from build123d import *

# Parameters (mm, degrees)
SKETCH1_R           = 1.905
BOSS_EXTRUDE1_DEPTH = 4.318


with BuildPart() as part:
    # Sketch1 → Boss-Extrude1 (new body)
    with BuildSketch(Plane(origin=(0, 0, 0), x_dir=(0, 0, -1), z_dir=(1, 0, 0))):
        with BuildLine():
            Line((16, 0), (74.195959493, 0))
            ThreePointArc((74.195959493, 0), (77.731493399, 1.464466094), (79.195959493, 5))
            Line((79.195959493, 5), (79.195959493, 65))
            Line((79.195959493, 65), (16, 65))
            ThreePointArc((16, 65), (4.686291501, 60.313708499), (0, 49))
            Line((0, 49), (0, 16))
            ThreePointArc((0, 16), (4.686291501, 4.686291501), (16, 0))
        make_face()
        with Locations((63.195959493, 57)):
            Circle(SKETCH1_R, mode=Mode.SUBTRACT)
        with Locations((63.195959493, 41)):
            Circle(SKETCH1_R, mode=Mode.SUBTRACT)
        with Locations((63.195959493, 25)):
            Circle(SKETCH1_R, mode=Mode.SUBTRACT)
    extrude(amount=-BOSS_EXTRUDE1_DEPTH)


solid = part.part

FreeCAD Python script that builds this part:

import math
import FreeCAD as App
import Part
import Sketcher
from FreeCAD import Vector

doc = App.newDocument("Part")
params = doc.addObject("Spreadsheet::Sheet", "Params")
for row, (alias, value) in enumerate([
    ("sketch1_radius", "5 mm"),
    ("sketch1_radius2", "16 mm"),
    ("sketch1_diameter", "3.81 mm"),
    ("sketch1_width", "60 mm"),
    ("pad1_length", "4.318 mm"),
], start=1):
    params.set(f"A{row}", alias)
    params.set(f"B{row}", "=" + value)
    params.setAlias(f"B{row}", alias)

body = doc.addObject("PartDesign::Body", "Body")

sketch1 = doc.addObject("Sketcher::SketchObject", "Sketch")
body.addObject(sketch1)
sketch1.AttachmentSupport = (doc.YZ_Plane, [""])
sketch1.MapMode = "FlatFace"
sketch1.addGeometry([
    Part.LineSegment(Vector(0, -16, 0), Vector(0, -74.2, 0)),
    Part.ArcOfCircle(Part.Circle(Vector(5, -74.2, 0), Vector(0, 0, 1), 5), math.radians(180), math.radians(270)),
    Part.LineSegment(Vector(5, -79.2, 0), Vector(65, -79.2, 0)),
    Part.LineSegment(Vector(65, -79.2, 0), Vector(65, -16, 0)),
    Part.ArcOfCircle(Part.Circle(Vector(49, -16, 0), Vector(0, 0, 1), 16), math.radians(0), math.radians(90)),
    Part.LineSegment(Vector(49, 0, 0), Vector(16, 0, 0)),
    Part.ArcOfCircle(Part.Circle(Vector(16, -16, 0), Vector(0, 0, 1), 16), math.radians(90), math.radians(180)),
    Part.Circle(Vector(25, -63.2, 0), Vector(0, 0, 1), 1.9),
    Part.Circle(Vector(41, -63.2, 0), Vector(0, 0, 1), 1.9),
    Part.Circle(Vector(57, -63.2, 0), Vector(0, 0, 1), 1.9),
], False)
sketch1.addConstraint([
    Sketcher.Constraint("Tangent", 0, 2, 1, 1),
    Sketcher.Constraint("Tangent", 1, 2, 2, 1),
    Sketcher.Constraint("Coincident", 2, 2, 3, 1),
    Sketcher.Constraint("Tangent", 3, 2, 4, 1),
    Sketcher.Constraint("Tangent", 4, 2, 5, 1),
    Sketcher.Constraint("Tangent", 5, 2, 6, 1),
    Sketcher.Constraint("Tangent", 6, 2, 0, 1),
    Sketcher.Constraint("Vertical", 0),
    Sketcher.Constraint("Horizontal", 2),
    Sketcher.Constraint("Vertical", 3),
    Sketcher.Constraint("Horizontal", 5),
    Sketcher.Constraint("Equal", 4, 6),
    Sketcher.Constraint("Equal", 7, 8),
    Sketcher.Constraint("Equal", 8, 9),
    Sketcher.Constraint("PointOnObject", 0, 2, -2),
    Sketcher.Constraint("PointOnObject", 4, 2, -1),
    Sketcher.Constraint("Horizontal", 7, 3, 8, 3),
    Sketcher.Constraint("Horizontal", 8, 3, 9, 3),
    Sketcher.Constraint("Radius", 1, 5.0),
    Sketcher.Constraint("Radius", 4, 16.0),
    Sketcher.Constraint("Diameter", 7, 3.81),
    Sketcher.Constraint("DistanceX", 2, 1, 2, 2, 60.0),
    Sketcher.Constraint("DistanceX", -1, 1, 7, 3, 25.0),
    Sketcher.Constraint("DistanceX", -1, 1, 8, 3, 41.0),
    Sketcher.Constraint("DistanceX", -1, 1, 9, 3, 57.0),
    Sketcher.Constraint("DistanceY", 1, 3, 7, 3, 11.0),
    Sketcher.Constraint("DistanceY", 0, 2, 0, 1, 58.195959),
])
sketch1.setExpression("Constraints[18]", "Params.sketch1_radius")
sketch1.setExpression("Constraints[19]", "Params.sketch1_radius2")
sketch1.setExpression("Constraints[20]", "Params.sketch1_diameter")
sketch1.setExpression("Constraints[21]", "Params.sketch1_width")
pad1 = doc.addObject("PartDesign::Pad", "Pad")
body.addObject(pad1)
pad1.Profile = sketch1
pad1.setExpression("Length", "Params.pad1_length")
pad1.Reversed = True

doc.recompute()
